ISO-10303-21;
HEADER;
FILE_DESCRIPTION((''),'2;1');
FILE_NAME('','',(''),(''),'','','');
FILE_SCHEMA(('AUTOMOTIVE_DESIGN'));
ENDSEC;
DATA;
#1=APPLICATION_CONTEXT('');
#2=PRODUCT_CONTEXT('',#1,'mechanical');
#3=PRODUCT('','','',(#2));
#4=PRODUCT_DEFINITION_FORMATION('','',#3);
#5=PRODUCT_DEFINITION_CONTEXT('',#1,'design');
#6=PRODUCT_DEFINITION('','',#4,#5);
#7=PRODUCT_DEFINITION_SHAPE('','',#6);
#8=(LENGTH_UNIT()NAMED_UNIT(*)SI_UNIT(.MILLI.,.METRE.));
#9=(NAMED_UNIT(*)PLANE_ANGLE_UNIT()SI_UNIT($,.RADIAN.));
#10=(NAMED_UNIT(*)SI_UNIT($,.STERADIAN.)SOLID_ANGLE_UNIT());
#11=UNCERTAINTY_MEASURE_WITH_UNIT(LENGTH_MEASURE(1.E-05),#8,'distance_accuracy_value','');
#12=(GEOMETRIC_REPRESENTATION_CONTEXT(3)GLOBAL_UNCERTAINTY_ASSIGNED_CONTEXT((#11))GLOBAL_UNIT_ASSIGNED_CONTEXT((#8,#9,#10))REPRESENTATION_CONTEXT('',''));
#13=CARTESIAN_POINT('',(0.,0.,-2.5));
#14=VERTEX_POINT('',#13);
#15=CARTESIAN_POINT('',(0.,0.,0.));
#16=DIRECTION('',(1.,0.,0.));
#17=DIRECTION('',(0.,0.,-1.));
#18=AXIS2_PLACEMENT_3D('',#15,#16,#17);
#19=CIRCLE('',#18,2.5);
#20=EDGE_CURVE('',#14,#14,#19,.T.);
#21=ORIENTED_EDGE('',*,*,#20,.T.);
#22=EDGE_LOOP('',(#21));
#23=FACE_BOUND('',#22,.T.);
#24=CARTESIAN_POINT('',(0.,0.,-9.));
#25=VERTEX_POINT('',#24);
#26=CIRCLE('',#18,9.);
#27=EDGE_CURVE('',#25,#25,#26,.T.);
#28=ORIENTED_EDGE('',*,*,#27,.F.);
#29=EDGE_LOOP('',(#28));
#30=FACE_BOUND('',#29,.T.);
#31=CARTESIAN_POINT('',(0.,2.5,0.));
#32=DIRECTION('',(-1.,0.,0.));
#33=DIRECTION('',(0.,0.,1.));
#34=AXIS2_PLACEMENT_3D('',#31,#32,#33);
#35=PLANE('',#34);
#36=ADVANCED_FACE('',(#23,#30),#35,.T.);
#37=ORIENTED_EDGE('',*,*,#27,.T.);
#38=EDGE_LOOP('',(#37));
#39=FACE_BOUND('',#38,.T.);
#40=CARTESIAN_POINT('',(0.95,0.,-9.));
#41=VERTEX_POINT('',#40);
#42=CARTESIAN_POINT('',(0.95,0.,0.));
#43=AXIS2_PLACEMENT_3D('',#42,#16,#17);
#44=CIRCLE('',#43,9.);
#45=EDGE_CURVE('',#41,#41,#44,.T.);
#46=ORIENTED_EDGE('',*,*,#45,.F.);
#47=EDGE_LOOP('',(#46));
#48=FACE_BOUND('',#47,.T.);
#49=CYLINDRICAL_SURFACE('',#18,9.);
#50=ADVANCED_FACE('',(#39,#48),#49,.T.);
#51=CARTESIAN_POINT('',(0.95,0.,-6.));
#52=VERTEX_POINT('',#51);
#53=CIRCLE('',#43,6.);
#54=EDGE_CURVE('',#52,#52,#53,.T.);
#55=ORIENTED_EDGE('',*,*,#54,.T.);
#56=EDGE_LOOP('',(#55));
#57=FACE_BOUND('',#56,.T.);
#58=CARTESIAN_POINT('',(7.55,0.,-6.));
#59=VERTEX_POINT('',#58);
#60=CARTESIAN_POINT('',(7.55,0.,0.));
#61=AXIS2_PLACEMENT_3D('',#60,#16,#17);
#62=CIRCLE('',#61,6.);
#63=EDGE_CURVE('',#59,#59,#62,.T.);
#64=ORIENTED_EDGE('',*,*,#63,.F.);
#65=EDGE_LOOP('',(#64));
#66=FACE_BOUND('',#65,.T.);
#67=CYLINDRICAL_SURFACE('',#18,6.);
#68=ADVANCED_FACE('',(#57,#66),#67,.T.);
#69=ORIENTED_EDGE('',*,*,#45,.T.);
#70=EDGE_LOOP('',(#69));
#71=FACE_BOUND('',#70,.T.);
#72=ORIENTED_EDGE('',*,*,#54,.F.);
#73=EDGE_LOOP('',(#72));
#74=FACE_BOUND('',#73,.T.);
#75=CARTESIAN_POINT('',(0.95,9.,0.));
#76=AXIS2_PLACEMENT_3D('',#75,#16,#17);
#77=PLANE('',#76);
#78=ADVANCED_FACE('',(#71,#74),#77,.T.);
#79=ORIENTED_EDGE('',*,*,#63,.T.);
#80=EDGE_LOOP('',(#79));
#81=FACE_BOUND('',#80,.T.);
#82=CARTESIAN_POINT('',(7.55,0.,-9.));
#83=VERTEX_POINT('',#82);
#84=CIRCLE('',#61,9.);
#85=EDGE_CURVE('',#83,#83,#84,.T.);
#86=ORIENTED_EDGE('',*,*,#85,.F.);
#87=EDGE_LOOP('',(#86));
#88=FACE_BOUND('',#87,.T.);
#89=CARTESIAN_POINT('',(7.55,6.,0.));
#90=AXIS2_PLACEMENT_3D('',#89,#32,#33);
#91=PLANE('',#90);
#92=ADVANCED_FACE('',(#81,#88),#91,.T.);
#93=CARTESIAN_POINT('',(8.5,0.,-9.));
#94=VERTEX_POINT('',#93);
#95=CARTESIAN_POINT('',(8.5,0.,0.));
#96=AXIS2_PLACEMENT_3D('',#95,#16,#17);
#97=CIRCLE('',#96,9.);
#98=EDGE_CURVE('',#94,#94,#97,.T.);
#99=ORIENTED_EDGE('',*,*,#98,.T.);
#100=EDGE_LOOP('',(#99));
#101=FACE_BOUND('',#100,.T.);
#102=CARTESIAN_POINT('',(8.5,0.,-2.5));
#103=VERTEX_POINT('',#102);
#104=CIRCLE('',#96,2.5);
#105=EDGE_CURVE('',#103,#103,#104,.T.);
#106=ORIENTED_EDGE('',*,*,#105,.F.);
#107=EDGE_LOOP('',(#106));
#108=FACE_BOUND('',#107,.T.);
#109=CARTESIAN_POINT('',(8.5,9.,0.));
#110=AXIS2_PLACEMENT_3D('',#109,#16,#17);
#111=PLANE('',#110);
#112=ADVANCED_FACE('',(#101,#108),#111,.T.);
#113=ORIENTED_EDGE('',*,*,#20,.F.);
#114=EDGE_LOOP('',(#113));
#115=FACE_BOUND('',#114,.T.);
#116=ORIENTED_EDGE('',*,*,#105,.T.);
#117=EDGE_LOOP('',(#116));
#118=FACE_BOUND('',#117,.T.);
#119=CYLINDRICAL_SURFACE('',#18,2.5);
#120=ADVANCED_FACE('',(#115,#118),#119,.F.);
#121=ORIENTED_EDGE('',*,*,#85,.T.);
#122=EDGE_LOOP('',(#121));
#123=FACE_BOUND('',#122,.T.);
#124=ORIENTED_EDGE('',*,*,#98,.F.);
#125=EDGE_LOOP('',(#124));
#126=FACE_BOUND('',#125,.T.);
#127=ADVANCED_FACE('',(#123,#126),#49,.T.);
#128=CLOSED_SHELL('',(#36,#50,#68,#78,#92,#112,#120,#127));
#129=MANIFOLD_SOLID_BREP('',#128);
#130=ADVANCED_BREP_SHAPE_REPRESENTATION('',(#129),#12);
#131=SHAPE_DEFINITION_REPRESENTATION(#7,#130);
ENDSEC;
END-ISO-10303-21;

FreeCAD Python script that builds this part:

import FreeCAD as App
import Part
import Sketcher


def add_polygon(sketch, points):
    """Adds a closed chain of lines whose ends are joined by coincident constraints."""
    first, n = sketch.GeometryCount, len(points)
    for a, b in zip(points, points[1:] + points[:1]):
        sketch.addGeometry(Part.LineSegment(App.Vector(*a, 0), App.Vector(*b, 0)), False)
    for i in range(n):
        sketch.addConstraint(Sketcher.Constraint("Coincident", first + i, 2, first + (i + 1) % n, 1))

doc = App.newDocument("Part")
body = doc.addObject("PartDesign::Body", "Body")

# Sketch on XY plane
sketch1 = body.newObject("Sketcher::SketchObject", "Sketch")
sketch1.AttachmentSupport = (doc.getObject("XY_Plane"), [""])
sketch1.MapMode = "FlatFace"
add_polygon(sketch1, [(0, 9), (0, 2.5), (8.5, 2.5), (8.5, 9), (7.55, 9), (7.55, 6), (0.95, 6), (0.95, 9)])  # lines 0-7
sketch1.addConstraint(Sketcher.Constraint("Vertical", 0))
sketch1.addConstraint(Sketcher.Constraint("Horizontal", 1))
sketch1.addConstraint(Sketcher.Constraint("Vertical", 2))
sketch1.addConstraint(Sketcher.Constraint("Horizontal", 3))
sketch1.addConstraint(Sketcher.Constraint("Vertical", 4))
sketch1.addConstraint(Sketcher.Constraint("Horizontal", 5))
sketch1.addConstraint(Sketcher.Constraint("Vertical", 6))
sketch1.addConstraint(Sketcher.Constraint("Horizontal", 7))
sketch1.addConstraint(Sketcher.Constraint("PointOnObject", 0, 2, -2))
sketch1.addConstraint(Sketcher.Constraint("Horizontal", 3, 2, 6, 2))
sketch1.addConstraint(Sketcher.Constraint("Equal", 3, 7))
sketch1.addConstraint(Sketcher.Constraint("DistanceY", 4, 2, 4, 1, 3.0))
sketch1.addConstraint(Sketcher.Constraint("DistanceX", 1, 1, 1, 2, 8.5))
sketch1.addConstraint(Sketcher.Constraint("DistanceX", 5, 2, 5, 1, 6.6))
sketch1.addConstraint(Sketcher.Constraint("DistanceY", 0, 2, 0, 1, 6.5))
sketch1.addConstraint(Sketcher.Constraint("DistanceY", -1, 1, 2, 2, 9.0))
revolution = body.newObject("PartDesign::Revolution", "Revolution")
revolution.Profile = sketch1
revolution.ReferenceAxis = (sketch1, ["H_Axis"])
revolution.Angle = 360

doc.recompute()
